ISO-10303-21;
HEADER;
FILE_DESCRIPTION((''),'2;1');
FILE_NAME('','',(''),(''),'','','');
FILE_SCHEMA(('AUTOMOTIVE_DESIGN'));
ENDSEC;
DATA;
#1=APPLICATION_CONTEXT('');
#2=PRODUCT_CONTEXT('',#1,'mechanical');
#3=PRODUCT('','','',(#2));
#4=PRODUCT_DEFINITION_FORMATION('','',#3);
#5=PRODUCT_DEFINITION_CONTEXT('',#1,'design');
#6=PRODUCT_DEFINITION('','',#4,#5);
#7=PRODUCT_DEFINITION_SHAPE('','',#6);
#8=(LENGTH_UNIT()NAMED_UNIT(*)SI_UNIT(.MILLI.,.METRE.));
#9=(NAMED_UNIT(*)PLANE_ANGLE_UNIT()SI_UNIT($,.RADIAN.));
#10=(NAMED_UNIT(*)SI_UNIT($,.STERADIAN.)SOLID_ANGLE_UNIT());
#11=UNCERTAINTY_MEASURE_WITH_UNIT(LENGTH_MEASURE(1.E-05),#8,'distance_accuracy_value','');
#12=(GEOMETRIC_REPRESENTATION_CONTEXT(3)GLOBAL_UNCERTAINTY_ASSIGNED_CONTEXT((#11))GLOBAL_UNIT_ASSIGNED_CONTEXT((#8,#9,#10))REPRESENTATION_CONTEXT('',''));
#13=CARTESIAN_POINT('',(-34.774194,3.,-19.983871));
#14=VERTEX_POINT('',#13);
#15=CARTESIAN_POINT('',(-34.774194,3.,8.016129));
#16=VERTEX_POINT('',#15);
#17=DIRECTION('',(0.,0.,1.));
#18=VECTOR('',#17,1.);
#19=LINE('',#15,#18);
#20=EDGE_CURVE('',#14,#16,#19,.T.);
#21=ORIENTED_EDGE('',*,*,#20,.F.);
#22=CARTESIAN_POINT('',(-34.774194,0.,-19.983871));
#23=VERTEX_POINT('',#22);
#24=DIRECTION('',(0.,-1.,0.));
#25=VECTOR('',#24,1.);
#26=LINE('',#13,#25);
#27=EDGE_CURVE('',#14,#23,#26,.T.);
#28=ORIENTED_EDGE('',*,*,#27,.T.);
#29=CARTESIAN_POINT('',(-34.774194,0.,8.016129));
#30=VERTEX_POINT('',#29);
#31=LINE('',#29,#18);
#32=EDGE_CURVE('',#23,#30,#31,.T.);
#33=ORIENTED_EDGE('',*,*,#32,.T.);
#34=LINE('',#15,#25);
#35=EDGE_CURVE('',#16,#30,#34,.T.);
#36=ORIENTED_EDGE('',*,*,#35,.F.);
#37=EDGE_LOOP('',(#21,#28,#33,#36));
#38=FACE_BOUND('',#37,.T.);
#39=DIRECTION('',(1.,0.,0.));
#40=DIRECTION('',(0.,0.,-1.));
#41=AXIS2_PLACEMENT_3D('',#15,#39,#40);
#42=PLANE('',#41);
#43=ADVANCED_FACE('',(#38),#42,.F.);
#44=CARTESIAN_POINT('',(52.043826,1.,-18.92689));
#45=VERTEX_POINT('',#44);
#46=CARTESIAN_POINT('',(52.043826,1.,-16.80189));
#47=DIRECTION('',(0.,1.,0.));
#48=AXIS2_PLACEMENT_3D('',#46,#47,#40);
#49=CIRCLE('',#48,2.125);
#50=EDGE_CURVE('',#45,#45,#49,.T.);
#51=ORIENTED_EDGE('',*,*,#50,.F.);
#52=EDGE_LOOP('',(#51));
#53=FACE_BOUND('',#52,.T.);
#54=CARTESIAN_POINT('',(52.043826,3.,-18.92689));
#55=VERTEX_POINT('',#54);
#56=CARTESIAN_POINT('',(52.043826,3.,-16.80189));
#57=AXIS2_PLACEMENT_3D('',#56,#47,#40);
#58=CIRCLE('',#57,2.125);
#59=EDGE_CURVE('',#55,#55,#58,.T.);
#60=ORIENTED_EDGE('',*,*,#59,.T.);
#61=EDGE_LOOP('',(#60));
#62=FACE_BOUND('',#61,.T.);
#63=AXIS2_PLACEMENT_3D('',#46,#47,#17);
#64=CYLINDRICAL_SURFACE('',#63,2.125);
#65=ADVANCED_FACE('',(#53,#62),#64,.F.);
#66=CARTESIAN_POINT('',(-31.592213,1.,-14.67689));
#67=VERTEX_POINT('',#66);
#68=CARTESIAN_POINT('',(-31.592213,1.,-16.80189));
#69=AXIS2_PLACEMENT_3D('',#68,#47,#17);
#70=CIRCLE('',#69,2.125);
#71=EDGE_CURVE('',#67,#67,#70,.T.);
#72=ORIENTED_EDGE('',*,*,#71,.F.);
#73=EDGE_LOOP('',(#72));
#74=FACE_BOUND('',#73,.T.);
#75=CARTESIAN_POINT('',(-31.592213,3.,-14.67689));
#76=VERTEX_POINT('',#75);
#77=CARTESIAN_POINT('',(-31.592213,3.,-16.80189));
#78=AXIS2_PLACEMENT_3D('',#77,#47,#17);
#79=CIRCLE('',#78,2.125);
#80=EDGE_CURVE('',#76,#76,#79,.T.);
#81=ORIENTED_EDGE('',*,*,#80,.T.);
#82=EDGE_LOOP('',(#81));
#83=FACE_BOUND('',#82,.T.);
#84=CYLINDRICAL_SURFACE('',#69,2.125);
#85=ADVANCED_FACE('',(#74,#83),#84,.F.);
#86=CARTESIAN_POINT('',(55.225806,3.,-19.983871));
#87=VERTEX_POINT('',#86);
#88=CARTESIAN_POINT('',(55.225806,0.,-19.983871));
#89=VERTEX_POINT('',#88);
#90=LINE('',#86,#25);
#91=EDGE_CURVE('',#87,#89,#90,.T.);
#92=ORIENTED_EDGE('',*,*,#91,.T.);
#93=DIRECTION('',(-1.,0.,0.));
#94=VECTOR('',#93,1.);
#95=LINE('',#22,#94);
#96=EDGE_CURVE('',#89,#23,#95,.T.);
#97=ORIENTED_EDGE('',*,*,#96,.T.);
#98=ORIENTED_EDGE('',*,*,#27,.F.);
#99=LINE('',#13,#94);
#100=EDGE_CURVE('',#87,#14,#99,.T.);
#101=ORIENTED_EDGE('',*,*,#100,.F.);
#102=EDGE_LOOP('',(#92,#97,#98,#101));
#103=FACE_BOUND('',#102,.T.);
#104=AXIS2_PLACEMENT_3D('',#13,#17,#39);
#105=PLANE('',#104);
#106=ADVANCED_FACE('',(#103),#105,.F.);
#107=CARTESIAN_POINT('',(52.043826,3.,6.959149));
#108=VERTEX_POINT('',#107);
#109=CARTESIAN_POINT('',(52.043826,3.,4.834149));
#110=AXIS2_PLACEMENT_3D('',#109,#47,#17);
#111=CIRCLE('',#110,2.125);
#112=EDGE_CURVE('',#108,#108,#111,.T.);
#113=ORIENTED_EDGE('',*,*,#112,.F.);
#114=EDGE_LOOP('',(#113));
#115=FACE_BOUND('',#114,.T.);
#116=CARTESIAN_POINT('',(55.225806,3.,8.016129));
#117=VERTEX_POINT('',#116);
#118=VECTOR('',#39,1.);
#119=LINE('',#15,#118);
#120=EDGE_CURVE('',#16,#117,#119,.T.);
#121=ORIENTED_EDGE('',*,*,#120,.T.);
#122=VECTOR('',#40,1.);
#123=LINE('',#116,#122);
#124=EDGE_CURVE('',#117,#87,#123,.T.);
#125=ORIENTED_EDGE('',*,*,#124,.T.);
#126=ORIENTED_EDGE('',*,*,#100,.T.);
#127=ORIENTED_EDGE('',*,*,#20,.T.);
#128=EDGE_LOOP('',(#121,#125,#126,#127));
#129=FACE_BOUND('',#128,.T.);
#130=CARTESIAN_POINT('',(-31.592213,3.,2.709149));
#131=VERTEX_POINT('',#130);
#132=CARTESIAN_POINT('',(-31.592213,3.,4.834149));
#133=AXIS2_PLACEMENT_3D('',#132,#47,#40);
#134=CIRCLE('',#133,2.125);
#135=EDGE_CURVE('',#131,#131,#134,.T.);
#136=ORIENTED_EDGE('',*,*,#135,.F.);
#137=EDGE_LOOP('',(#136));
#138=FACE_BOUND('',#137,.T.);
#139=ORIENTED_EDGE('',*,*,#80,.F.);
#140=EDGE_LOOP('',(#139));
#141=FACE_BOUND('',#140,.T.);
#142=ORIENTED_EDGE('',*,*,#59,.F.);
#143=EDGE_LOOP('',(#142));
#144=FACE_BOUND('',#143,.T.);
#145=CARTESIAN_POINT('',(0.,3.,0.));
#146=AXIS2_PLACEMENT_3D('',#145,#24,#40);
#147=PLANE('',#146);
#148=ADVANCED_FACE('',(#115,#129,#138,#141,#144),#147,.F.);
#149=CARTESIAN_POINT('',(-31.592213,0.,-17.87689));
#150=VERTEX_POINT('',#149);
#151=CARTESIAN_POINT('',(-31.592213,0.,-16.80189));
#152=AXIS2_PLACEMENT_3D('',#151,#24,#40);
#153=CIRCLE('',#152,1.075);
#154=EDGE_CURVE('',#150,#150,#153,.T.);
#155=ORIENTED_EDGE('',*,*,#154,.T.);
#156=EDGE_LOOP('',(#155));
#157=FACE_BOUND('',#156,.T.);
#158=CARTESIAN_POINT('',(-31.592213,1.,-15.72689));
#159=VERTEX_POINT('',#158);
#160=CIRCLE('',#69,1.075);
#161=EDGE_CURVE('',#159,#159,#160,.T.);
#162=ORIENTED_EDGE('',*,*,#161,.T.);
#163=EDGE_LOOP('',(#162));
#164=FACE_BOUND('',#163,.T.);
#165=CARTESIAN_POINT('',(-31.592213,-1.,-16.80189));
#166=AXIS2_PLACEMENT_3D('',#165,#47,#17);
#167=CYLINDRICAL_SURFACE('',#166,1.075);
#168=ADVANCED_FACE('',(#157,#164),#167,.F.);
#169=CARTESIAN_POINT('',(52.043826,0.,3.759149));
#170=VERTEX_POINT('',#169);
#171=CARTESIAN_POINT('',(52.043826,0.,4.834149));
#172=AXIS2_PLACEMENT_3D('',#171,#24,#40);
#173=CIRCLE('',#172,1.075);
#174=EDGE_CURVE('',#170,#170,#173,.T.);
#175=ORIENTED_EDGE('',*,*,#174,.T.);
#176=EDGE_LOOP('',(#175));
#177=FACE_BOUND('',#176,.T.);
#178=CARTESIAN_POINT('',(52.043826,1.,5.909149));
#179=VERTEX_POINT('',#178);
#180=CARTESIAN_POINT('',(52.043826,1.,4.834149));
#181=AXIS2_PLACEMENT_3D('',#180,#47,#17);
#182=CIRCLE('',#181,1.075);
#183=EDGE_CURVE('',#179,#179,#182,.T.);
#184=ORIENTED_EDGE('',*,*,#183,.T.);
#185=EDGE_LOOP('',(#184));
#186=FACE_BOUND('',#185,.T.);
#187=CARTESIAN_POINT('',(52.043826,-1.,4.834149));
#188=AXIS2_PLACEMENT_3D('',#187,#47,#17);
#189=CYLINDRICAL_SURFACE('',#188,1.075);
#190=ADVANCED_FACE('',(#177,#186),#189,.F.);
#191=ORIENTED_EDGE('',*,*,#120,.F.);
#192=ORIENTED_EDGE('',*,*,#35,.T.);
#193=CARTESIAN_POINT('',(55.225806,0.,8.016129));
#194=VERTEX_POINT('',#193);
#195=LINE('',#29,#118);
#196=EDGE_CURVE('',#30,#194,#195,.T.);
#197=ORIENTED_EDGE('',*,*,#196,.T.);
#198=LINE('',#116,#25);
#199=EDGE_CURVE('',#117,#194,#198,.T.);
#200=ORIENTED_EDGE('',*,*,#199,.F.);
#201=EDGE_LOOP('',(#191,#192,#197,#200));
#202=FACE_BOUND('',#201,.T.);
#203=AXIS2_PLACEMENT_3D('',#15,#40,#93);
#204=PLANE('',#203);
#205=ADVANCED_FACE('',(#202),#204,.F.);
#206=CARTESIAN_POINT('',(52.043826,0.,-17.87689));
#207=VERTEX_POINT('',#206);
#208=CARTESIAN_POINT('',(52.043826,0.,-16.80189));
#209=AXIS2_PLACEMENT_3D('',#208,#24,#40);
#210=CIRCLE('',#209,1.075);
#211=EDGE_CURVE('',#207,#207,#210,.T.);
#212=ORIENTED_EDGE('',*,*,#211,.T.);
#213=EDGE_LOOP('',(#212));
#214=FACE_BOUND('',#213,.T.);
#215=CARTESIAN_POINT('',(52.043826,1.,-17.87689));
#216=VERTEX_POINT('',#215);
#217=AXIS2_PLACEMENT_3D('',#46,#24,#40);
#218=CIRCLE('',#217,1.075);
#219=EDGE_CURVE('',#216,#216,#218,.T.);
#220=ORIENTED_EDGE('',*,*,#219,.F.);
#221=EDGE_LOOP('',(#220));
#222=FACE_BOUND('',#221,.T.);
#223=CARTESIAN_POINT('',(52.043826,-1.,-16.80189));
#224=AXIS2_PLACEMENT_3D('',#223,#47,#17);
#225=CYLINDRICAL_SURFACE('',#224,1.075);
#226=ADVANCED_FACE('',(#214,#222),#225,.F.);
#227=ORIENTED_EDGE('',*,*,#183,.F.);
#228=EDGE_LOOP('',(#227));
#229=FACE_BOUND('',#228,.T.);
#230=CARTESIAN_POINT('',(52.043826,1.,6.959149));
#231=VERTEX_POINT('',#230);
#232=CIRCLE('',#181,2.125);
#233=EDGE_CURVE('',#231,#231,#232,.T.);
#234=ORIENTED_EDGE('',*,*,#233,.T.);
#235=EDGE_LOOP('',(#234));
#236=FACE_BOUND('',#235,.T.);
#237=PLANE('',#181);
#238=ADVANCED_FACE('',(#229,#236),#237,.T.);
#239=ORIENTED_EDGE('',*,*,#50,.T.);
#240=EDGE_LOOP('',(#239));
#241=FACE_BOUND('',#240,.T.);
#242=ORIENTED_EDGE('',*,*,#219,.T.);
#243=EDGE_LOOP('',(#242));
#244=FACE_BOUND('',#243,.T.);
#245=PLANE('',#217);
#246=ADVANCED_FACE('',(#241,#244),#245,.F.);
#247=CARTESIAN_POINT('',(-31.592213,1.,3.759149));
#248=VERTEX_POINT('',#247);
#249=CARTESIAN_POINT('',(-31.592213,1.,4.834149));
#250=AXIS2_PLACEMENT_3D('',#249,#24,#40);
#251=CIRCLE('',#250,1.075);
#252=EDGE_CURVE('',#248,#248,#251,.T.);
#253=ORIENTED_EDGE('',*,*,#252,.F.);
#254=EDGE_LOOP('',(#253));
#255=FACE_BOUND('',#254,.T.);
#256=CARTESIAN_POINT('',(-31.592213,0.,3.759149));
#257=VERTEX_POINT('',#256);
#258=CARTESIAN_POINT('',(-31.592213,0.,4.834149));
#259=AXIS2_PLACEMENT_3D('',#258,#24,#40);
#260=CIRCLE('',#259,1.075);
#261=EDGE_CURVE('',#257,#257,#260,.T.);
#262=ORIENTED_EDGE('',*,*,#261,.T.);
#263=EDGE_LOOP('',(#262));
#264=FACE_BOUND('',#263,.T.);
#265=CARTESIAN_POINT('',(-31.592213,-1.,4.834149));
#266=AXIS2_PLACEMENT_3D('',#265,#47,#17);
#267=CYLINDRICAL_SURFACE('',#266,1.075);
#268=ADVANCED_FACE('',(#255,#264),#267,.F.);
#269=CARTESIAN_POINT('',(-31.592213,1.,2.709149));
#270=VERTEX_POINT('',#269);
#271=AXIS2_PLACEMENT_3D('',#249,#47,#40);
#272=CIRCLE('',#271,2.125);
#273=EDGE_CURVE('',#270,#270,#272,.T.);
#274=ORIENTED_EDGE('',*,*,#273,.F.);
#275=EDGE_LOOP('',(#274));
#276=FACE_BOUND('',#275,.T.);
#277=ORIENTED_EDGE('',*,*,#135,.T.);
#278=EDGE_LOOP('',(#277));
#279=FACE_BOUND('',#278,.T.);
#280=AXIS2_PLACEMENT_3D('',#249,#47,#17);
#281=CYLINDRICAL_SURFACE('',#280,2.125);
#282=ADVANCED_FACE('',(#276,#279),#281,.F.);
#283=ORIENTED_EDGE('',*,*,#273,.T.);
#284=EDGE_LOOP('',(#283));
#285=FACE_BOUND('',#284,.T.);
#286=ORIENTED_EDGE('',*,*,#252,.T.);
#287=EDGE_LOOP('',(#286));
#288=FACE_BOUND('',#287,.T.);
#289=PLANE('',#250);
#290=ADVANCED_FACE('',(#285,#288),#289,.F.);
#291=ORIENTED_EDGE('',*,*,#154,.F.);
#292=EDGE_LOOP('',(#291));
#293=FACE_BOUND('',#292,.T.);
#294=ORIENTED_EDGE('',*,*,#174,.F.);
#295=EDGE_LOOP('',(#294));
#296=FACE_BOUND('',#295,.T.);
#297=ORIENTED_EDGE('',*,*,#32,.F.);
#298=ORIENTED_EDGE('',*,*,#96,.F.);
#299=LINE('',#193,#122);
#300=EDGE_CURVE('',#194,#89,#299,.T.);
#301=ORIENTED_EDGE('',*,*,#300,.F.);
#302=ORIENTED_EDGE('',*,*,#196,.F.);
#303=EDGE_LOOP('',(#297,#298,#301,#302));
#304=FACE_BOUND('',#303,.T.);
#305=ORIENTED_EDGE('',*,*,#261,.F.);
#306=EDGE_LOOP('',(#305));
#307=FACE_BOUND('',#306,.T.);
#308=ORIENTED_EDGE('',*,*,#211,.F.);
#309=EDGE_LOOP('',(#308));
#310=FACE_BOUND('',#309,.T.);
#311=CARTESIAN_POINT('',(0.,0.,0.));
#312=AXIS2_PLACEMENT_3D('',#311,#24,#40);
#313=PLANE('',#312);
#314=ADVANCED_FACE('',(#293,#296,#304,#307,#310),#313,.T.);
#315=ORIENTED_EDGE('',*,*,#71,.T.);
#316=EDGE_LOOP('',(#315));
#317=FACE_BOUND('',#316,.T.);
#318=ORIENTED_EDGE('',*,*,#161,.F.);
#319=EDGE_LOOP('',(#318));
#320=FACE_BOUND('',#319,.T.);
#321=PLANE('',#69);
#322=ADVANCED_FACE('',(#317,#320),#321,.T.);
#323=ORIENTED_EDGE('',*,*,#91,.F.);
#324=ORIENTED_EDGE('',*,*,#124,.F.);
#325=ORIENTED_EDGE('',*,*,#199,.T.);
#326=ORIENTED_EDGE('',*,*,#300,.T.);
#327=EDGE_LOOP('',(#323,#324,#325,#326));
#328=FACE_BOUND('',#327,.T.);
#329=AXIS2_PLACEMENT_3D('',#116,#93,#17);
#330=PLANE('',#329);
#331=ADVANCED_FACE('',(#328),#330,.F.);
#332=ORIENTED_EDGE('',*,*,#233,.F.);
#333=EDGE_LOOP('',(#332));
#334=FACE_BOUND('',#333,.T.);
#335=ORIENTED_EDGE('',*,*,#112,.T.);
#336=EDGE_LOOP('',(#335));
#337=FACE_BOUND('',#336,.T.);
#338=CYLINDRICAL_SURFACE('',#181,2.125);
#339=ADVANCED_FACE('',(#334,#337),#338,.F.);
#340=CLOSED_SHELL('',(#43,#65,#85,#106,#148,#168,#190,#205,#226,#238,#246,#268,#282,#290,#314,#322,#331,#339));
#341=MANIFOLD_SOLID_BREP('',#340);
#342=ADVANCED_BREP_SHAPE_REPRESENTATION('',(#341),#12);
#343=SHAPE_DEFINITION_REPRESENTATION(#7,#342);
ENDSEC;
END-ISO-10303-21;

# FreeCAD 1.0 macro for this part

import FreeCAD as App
import Part
import Sketcher

V = App.Vector


def add_polygon(sketch, points):
    """Adds a closed chain of lines whose ends are joined by coincident constraints."""
    first, n = sketch.GeometryCount, len(points)
    for a, b in zip(points, points[1:] + points[:1]):
        sketch.addGeometry(Part.LineSegment(App.Vector(*a, 0), App.Vector(*b, 0)), False)
    for i in range(n):
        sketch.addConstraint(Sketcher.Constraint("Coincident", first + i, 2, first + (i + 1) % n, 1))

doc = App.newDocument("Part")
params = doc.addObject("Spreadsheet::Sheet", "Params")
for row, (alias, value) in enumerate([
    ("sketch1_width", "90 mm"),
    ("sketch1_height", "28 mm"),
    ("pad1_length", "3 mm"),
    ("sketch2_diameter", "4.25 mm"),
    ("sketch2_diameter2", "2.15 mm"),
    ("pocket1_length", "2 mm"),
    ("sketch3_diameter", "2.15 mm"),
    ("pocket2_length", "4 mm"),
], start=1):
    params.set(f"A{row}", alias)
    params.set(f"B{row}", "=" + value)
    params.setAlias(f"B{row}", alias)

body = doc.addObject("PartDesign::Body", "Body")

# Sketch on XZ plane
sketch1 = body.newObject("Sketcher::SketchObject", "Sketch")
sketch1.AttachmentSupport = (doc.getObject("XZ_Plane"), [""])
sketch1.MapMode = "FlatFace"
add_polygon(sketch1, [(-34.774194, -19.983871), (-34.774194, 8.016129), (55.225806, 8.016129), (55.225806, -19.983871)])  # lines 0-3
sketch1.addConstraint([
    Sketcher.Constraint("Vertical", 0),
    Sketcher.Constraint("Horizontal", 1),
    Sketcher.Constraint("Vertical", 2),
    Sketcher.Constraint("Horizontal", 3),
    Sketcher.Constraint("DistanceX", 1, 1, 1, 2, 90.0),
    Sketcher.Constraint("DistanceY", 0, 1, 0, 2, 28.0),
    Sketcher.Constraint("DistanceY", -1, 1, 0, 2, 8.016129),
    Sketcher.Constraint("DistanceX", 0, 2, -1, 1, 34.774194),
])
sketch1.setExpression("Constraints[8]", "Params.sketch1_width")
sketch1.setExpression("Constraints[9]", "Params.sketch1_height")
pad1 = body.newObject("PartDesign::Pad", "Pad")
pad1.Profile = sketch1
pad1.setExpression("Length", "Params.pad1_length")
pad1.Reversed = True

# Sketch on XZ plane
sketch2 = body.newObject("Sketcher::SketchObject", "Sketch001")
sketch2.AttachmentSupport = (doc.getObject("XZ_Plane"), [""])
sketch2.MapMode = "FlatFace"
sketch2.AttachmentOffset = App.Placement(V(0, 0, -3), App.Rotation())
sketch2.addGeometry([
    Part.Circle(V(-31.592213, -16.80189, 0), V(0, 0, 1), 2.125),  # 0
    Part.Circle(V(-31.592213, -16.80189, 0), V(0, 0, 1), 1.075),  # 1
    Part.Circle(V(-31.592213, 4.834149, 0), V(0, 0, 1), 2.125),  # 2
    Part.Circle(V(-31.592213, 4.834149, 0), V(0, 0, 1), 1.075),  # 3
    Part.Circle(V(52.043826, 4.834149, 0), V(0, 0, 1), 2.125),  # 4
    Part.Circle(V(52.043826, 4.834149, 0), V(0, 0, 1), 1.075),  # 5
    Part.Circle(V(52.043826, -16.80189, 0), V(0, 0, 1), 2.125),  # 6
    Part.Circle(V(52.043826, -16.80189, 0), V(0, 0, 1), 1.075),  # 7
], False)
sketch2.addConstraint([
    Sketcher.Constraint("Coincident", 1, 3, 0, 3),
    Sketcher.Constraint("Coincident", 3, 3, 2, 3),
    Sketcher.Constraint("Coincident", 5, 3, 4, 3),
    Sketcher.Constraint("Coincident", 7, 3, 6, 3),
    Sketcher.Constraint("Equal", 0, 2),
    Sketcher.Constraint("Equal", 1, 3),
    Sketcher.Constraint("Equal", 2, 4),
    Sketcher.Constraint("Equal", 3, 5),
    Sketcher.Constraint("Equal", 4, 6),
    Sketcher.Constraint("Equal", 5, 7),
    Sketcher.Constraint("Horizontal", 3, 3, 4, 3),
    Sketcher.Constraint("Horizontal", 1, 3, 6, 3),
    Sketcher.Constraint("Vertical", 1, 3, 2, 3),
    Sketcher.Constraint("Vertical", 5, 3, 6, 3),
    Sketcher.Constraint("Diameter", 0, 4.25),
    Sketcher.Constraint("Diameter", 1, 2.15),
    Sketcher.Constraint("DistanceY", 0, 3, -1, 1, 16.80189),
    Sketcher.Constraint("DistanceY", -1, 1, 2, 3, 4.834149),
    Sketcher.Constraint("DistanceX", 2, 3, 4, 3, 83.636039),
    Sketcher.Constraint("DistanceX", 0, 3, -1, 1, 31.592213),
])
sketch2.setExpression("Constraints[14]", "Params.sketch2_diameter")
sketch2.setExpression("Constraints[15]", "Params.sketch2_diameter2")
pocket1 = body.newObject("PartDesign::Pocket", "Pocket")
pocket1.Profile = sketch2
pocket1.setExpression("Length", "Params.pocket1_length")
pocket1.Reversed = True

# Sketch on XZ plane
sketch3 = body.newObject("Sketcher::SketchObject", "Sketch002")
sketch3.AttachmentSupport = (doc.getObject("XZ_Plane"), [""])
sketch3.MapMode = "FlatFace"
sketch3.AttachmentOffset = App.Placement(V(0, 0, -3), App.Rotation())
sketch3.addGeometry([
    Part.Circle(V(-31.592213, -16.80189, 0), V(0, 0, 1), 1.075),
    Part.Circle(V(-31.592213, 4.834149, 0), V(0, 0, 1), 1.075),
    Part.Circle(V(52.043826, 4.834149, 0), V(0, 0, 1), 1.075),
    Part.Circle(V(52.043826, -16.80189, 0), V(0, 0, 1), 1.075),
], False)
sketch3.addConstraint([
    Sketcher.Constraint("Equal", 0, 1),
    Sketcher.Constraint("Equal", 1, 2),
    Sketcher.Constraint("Equal", 2, 3),
    Sketcher.Constraint("Horizontal", 1, 3, 2, 3),
    Sketcher.Constraint("Horizontal", 0, 3, 3, 3),
    Sketcher.Constraint("Vertical", 0, 3, 1, 3),
    Sketcher.Constraint("Vertical", 2, 3, 3, 3),
    Sketcher.Constraint("Diameter", 0, 2.15),
    Sketcher.Constraint("DistanceY", 0, 3, -1, 1, 16.80189),
    Sketcher.Constraint("DistanceY", -1, 1, 1, 3, 4.834149),
    Sketcher.Constraint("DistanceX", 1, 3, 2, 3, 83.636039),
    Sketcher.Constraint("DistanceX", 0, 3, -1, 1, 31.592213),
])
sketch3.setExpression("Constraints[7]", "Params.sketch3_diameter")
pocket2 = body.newObject("PartDesign::Pocket", "Pocket001")
pocket2.Profile = sketch3
pocket2.setExpression("Length", "Params.pocket2_length")
pocket2.Reversed = True

doc.recompute()
